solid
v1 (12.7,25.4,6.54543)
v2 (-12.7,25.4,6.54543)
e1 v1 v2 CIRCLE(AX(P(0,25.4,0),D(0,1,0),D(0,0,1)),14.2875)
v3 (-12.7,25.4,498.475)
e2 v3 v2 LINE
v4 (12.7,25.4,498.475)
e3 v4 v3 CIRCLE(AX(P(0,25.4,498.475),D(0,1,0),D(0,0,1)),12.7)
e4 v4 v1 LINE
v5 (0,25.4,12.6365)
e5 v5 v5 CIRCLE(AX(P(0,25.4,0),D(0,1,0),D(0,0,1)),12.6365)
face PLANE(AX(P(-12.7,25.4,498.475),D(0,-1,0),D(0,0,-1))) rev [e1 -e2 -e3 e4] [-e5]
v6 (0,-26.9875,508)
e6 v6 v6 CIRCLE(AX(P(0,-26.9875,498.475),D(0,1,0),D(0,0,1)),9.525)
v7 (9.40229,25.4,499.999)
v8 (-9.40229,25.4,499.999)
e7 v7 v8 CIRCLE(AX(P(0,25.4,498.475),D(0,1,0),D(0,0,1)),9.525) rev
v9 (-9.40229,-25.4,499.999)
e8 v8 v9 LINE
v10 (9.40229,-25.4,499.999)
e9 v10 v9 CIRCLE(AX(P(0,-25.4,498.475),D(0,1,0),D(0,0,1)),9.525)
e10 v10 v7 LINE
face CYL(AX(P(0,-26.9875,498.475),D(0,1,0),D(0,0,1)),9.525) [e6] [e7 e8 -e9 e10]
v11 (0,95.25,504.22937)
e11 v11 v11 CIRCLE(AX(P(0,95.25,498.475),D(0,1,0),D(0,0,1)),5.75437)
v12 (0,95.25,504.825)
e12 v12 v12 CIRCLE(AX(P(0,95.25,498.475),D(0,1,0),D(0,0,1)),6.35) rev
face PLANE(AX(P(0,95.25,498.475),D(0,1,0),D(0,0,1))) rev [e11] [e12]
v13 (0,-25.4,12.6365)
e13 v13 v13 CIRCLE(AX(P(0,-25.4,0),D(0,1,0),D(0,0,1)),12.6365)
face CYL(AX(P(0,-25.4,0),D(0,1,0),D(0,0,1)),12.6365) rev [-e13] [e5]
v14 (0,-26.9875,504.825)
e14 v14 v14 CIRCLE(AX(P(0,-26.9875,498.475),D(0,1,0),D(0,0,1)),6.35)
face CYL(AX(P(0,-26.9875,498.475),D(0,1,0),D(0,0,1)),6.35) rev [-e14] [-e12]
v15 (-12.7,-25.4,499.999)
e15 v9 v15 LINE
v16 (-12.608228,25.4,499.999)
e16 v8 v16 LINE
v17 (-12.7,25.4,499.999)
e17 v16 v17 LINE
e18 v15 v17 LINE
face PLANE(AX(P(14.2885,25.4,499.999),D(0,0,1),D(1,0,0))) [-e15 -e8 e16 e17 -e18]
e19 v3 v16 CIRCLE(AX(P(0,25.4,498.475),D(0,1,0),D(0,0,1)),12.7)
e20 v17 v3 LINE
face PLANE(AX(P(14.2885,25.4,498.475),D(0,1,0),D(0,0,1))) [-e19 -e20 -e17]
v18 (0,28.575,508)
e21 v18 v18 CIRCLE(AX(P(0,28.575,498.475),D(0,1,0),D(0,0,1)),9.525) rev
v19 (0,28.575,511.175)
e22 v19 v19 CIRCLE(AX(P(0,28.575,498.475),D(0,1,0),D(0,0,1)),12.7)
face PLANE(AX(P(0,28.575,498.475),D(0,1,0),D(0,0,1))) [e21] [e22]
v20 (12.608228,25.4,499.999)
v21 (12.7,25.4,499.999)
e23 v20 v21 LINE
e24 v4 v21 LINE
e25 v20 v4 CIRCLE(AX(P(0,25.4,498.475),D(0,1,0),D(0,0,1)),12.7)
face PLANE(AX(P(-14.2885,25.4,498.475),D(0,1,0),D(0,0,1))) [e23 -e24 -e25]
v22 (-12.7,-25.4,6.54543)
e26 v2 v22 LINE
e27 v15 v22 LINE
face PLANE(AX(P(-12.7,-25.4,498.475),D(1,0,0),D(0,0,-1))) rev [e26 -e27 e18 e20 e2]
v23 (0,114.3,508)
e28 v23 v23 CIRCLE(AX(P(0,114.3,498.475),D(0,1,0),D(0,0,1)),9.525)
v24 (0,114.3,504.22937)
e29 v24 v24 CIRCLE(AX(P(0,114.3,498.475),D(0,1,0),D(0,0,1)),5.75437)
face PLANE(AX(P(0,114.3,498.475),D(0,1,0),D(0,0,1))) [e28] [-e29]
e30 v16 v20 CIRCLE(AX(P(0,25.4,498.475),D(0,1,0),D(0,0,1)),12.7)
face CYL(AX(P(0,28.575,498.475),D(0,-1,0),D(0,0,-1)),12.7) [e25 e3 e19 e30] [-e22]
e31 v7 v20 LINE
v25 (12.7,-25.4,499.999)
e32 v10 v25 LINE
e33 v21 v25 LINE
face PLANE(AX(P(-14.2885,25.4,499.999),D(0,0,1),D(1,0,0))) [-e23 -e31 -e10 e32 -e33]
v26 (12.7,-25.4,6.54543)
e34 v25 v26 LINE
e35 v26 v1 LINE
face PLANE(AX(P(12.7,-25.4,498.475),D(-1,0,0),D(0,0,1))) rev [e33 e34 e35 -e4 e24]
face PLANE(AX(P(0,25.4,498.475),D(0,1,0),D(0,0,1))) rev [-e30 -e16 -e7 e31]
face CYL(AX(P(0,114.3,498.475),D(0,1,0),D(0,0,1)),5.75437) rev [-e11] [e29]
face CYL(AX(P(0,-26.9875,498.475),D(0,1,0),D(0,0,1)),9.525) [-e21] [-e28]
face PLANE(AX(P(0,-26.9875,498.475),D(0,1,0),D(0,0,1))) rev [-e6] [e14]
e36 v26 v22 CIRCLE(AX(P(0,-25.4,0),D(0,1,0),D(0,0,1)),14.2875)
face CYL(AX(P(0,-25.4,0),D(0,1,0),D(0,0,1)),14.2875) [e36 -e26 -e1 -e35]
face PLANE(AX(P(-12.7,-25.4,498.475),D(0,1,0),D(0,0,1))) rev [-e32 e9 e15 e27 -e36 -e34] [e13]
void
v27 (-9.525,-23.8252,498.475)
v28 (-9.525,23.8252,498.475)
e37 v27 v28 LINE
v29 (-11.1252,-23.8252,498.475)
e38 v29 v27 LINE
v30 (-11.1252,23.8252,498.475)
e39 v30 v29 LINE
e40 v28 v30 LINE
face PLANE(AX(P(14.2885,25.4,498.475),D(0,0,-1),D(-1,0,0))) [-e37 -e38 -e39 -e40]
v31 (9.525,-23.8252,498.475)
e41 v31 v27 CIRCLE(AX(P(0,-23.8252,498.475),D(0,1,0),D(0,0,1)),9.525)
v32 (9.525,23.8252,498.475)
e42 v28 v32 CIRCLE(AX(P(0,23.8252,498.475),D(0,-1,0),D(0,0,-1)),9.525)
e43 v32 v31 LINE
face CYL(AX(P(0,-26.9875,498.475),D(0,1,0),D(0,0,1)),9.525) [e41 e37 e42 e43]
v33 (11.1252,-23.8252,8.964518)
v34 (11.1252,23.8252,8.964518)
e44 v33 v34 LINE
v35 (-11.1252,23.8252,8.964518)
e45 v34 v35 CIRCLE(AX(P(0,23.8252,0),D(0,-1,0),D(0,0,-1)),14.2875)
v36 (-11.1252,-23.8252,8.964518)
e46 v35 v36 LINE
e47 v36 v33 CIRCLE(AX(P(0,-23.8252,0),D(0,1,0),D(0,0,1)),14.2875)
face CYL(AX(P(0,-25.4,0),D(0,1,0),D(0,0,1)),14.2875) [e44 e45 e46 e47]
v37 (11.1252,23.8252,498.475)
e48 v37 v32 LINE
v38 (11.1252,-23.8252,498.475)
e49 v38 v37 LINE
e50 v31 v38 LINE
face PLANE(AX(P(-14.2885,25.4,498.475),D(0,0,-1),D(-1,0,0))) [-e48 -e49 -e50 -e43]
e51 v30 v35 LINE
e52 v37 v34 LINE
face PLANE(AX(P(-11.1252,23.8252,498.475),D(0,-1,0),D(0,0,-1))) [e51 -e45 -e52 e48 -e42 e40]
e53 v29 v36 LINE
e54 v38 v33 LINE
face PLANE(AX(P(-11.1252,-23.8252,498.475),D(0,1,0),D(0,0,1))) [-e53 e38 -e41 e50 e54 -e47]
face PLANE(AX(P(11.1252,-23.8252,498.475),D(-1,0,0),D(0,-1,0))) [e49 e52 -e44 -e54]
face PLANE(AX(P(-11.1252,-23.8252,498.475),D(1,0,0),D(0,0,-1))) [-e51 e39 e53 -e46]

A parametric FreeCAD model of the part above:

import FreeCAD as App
import Part
import Sketcher
from FreeCAD import Vector
Q = App.Units.Quantity


def add_polygon(sketch, points):
    """Adds a closed chain of lines whose ends are joined by coincident constraints."""
    first, n = sketch.GeometryCount, len(points)
    for a, b in zip(points, points[1:] + points[:1]):
        sketch.addGeometry(Part.LineSegment(App.Vector(*a, 0), App.Vector(*b, 0)), False)
    for i in range(n):
        sketch.addConstraint(Sketcher.Constraint("Coincident", first + i, 2, first + (i + 1) % n, 1))

doc = App.newDocument("Part")
params = doc.addObject("Spreadsheet::Sheet", "Params")
for row, (alias, value) in enumerate([
    ("sketch1_width", "1 in"),
    ("sketch1_height", "2 in"),
    ("sketch1_width2", "0.876 in"),
    ("sketch1_height2", "1.876 in"),
    ("pad1_length", "19.625 in"),
    ("sketch2_diameter", "0.75 in"),
    ("sketch2_diameter2", "1.125 in"),
    ("sketch3_diameter", "1.125 in"),
    ("sketch3_diameter2", "0.995 in"),
    ("pad2_length", "2 in"),
    ("sketch4_diameter", "0.5 in"),
    ("sketch4_diameter2", "0.75 in"),
    ("pad3_length", "3.5 in"),
    ("pad3_length2", "2.0625 in"),
    ("sketch5_diameter", "1 in"),
    ("sketch5_diameter2", "0.75 in"),
    ("pad4_length", "0.125 in"),
    ("sketch6_diameter", "0.5 in"),
    ("pad5_length", "0.75 in"),
    ("hole_diameter", "0.4531 in"),
    ("hole_depth", "0.75 in"),
    ("sketch8_width", "2 in"),
    ("sketch8_height", "0.06 in"),
    ("sketch9_width", "2 in"),
    ("sketch9_height", "0.06 in"),
], start=1):
    params.set(f"A{row}", alias)
    params.set(f"B{row}", "=" + value)
    params.setAlias(f"B{row}", alias)

body = doc.addObject("PartDesign::Body", "Body")

# Sketch on XY plane
sketch1 = body.newObject("Sketcher::SketchObject", "Sketch")
sketch1.AttachmentSupport = (doc.getObject("XY_Plane"), [""])
sketch1.MapMode = "FlatFace"
add_polygon(sketch1, [(-13, 25), (-13, -25), (13, -25), (13, 25)])  # lines 0-3
add_polygon(sketch1, [(11, -24), (-11, -24), (-11, 24), (11, 24)])  # lines 4-7
sketch1.addConstraint([
    Sketcher.Constraint("Vertical", 0),
    Sketcher.Constraint("Horizontal", 1),
    Sketcher.Constraint("Vertical", 2),
    Sketcher.Constraint("Horizontal", 3),
    Sketcher.Constraint("Horizontal", 4),
    Sketcher.Constraint("Vertical", 5),
    Sketcher.Constraint("Horizontal", 6),
    Sketcher.Constraint("Vertical", 7),
    Sketcher.Constraint("Symmetric", 0, 2, 2, 2, -1, 1),
    Sketcher.Constraint("Symmetric", 4, 2, 6, 2, -1, 1),
    Sketcher.Constraint("DistanceX", 1, 1, 1, 2, Q("1 in")),
    Sketcher.Constraint("DistanceY", 0, 2, 0, 1, Q("2 in")),
    Sketcher.Constraint("DistanceX", 4, 2, 4, 1, Q("0.876 in")),
    Sketcher.Constraint("DistanceY", 5, 1, 5, 2, Q("1.876 in")),
])
sketch1.setExpression("Constraints[18]", "Params.sketch1_width")
sketch1.setExpression("Constraints[19]", "Params.sketch1_height")
sketch1.setExpression("Constraints[20]", "Params.sketch1_width2")
sketch1.setExpression("Constraints[21]", "Params.sketch1_height2")
pad1 = body.newObject("PartDesign::Pad", "Pad")
pad1.Profile = sketch1
pad1.setExpression("Length", "Params.pad1_length")

# Sketch on XZ plane
sketch2 = body.newObject("Sketcher::SketchObject", "Sketch001")
sketch2.AttachmentSupport = (doc.getObject("XZ_Plane"), [""])
sketch2.MapMode = "FlatFace"
sketch2.AttachmentOffset = App.Placement(Vector(0, 0, -1 * 25.4), App.Rotation())
sketch2.addGeometry([
    Part.Circle(Vector(0, 0, 0), Vector(0, 0, 1), 14),
    Part.Circle(Vector(0, 498, 0), Vector(0, 0, 1), 10),
], False)
sketch2.addConstraint([
    Sketcher.Constraint("Coincident", 0, 3, -1, 1),
    Sketcher.Constraint("PointOnObject", 1, 3, -2),
    Sketcher.Constraint("Diameter", 1, Q("0.75 in")),
    Sketcher.Constraint("Diameter", 0, Q("1.125 in")),
    Sketcher.Constraint("DistanceY", -1, 1, 1, 3, Q("19.625 in")),
])
sketch2.setExpression("Constraints[2]", "Params.sketch2_diameter")
sketch2.setExpression("Constraints[3]", "Params.sketch2_diameter2")
pocket1 = body.newObject("PartDesign::Pocket", "Pocket")
pocket1.Profile = sketch2
pocket1.Type = "ThroughAll"
pocket1.Reversed = True

# Sketch on XZ plane
sketch3 = body.newObject("Sketcher::SketchObject", "Sketch002")
sketch3.AttachmentSupport = (doc.getObject("XZ_Plane"), [""])
sketch3.MapMode = "FlatFace"
sketch3.AttachmentOffset = App.Placement(Vector(0, 0, -1 * 25.4), App.Rotation())
sketch3.addGeometry([
    Part.Circle(Vector(0, 0, 0), Vector(0, 0, 1), 14),
    Part.Circle(Vector(0, 0, 0), Vector(0, 0, 1), 13),
], False)
sketch3.addConstraint([
    Sketcher.Constraint("Coincident", 0, 3, -1, 1),
    Sketcher.Constraint("Coincident", 1, 3, -1, 1),
    Sketcher.Constraint("Diameter", 0, Q("1.125 in")),
    Sketcher.Constraint("Diameter", 1, Q("0.995 in")),
])
sketch3.setExpression("Constraints[2]", "Params.sketch3_diameter")
sketch3.setExpression("Constraints[3]", "Params.sketch3_diameter2")
pad2 = body.newObject("PartDesign::Pad", "Pad001")
pad2.Profile = sketch3
pad2.setExpression("Length", "Params.pad2_length")

# Sketch on XZ plane
sketch4 = body.newObject("Sketcher::SketchObject", "Sketch003")
sketch4.AttachmentSupport = (doc.getObject("XZ_Plane"), [""])
sketch4.MapMode = "FlatFace"
sketch4.AttachmentOffset = App.Placement(Vector(0, 0, -1 * 25.4), App.Rotation())
sketch4.addGeometry([
    Part.Circle(Vector(0, 498, 0), Vector(0, 0, 1), 10),
    Part.Circle(Vector(0, 498, 0), Vector(0, 0, 1), 6),
], False)
sketch4.addConstraint([
    Sketcher.Constraint("Coincident", 1, 3, 0, 3),
    Sketcher.Constraint("PointOnObject", 0, 3, -2),
    Sketcher.Constraint("Diameter", 1, Q("0.5 in")),
    Sketcher.Constraint("Diameter", 0, Q("0.75 in")),
    Sketcher.Constraint("DistanceY", -1, 1, 0, 3, Q("19.625 in")),
])
sketch4.setExpression("Constraints[2]", "Params.sketch4_diameter")
sketch4.setExpression("Constraints[3]", "Params.sketch4_diameter2")
pad3 = body.newObject("PartDesign::Pad", "Pad002")
pad3.Profile = sketch4
pad3.Type = "TwoLengths"
pad3.setExpression("Length", "Params.pad3_length")
pad3.setExpression("Length2", "Params.pad3_length2")
pad3.Reversed = True

# Sketch on XZ plane
sketch5 = body.newObject("Sketcher::SketchObject", "Sketch004")
sketch5.AttachmentSupport = (doc.getObject("XZ_Plane"), [""])
sketch5.MapMode = "FlatFace"
sketch5.AttachmentOffset = App.Placement(Vector(0, 0, -1 * 25.4), App.Rotation())
sketch5.addGeometry([
    Part.Circle(Vector(0, 498, 0), Vector(0, 0, 1), 13),
    Part.Circle(Vector(0, 498, 0), Vector(0, 0, 1), 10),
], False)
sketch5.addConstraint([
    Sketcher.Constraint("Coincident", 1, 3, 0, 3),
    Sketcher.Constraint("PointOnObject", 0, 3, -2),
    Sketcher.Constraint("Diameter", 0, Q("1 in")),
    Sketcher.Constraint("Diameter", 1, Q("0.75 in")),
    Sketcher.Constraint("DistanceY", -1, 1, 0, 3, Q("19.625 in")),
])
sketch5.setExpression("Constraints[2]", "Params.sketch5_diameter")
sketch5.setExpression("Constraints[3]", "Params.sketch5_diameter2")
pad4 = body.newObject("PartDesign::Pad", "Pad003")
pad4.Profile = sketch5
pad4.setExpression("Length", "Params.pad4_length")
pad4.Reversed = True

# Sketch on XZ plane
sketch6 = body.newObject("Sketcher::SketchObject", "Sketch005")
sketch6.AttachmentSupport = (doc.getObject("XZ_Plane"), [""])
sketch6.MapMode = "FlatFace"
sketch6.AttachmentOffset = App.Placement(Vector(0, 0, -4.5 * 25.4), App.Rotation())
sketch6.addGeometry(Part.Circle(Vector(0, 498, 0), Vector(0, 0, 1), 6), False)
sketch6.addConstraint([
    Sketcher.Constraint("PointOnObject", 0, 3, -2),
    Sketcher.Constraint("Diameter", 0, Q("0.5 in")),
    Sketcher.Constraint("DistanceY", -1, 1, 0, 3, Q("19.625 in")),
])
sketch6.setExpression("Constraints[1]", "Params.sketch6_diameter")
pad5 = body.newObject("PartDesign::Pad", "Pad004")
pad5.Profile = sketch6
pad5.setExpression("Length", "Params.pad5_length")

# Sketch on XZ plane
sketch7 = body.newObject("Sketcher::SketchObject", "Sketch006")
sketch7.AttachmentSupport = (doc.getObject("XZ_Plane"), [""])
sketch7.MapMode = "FlatFace"
sketch7.AttachmentOffset = App.Placement(Vector(0, 0, -4.5 * 25.4), App.Rotation())
sketch7.addGeometry(Part.Circle(Vector(0, 498, 0), Vector(0, 0, 1), 6), False)
sketch7.addConstraint([
    Sketcher.Constraint("PointOnObject", 0, 3, -2),
    Sketcher.Constraint("Diameter", 0, Q("0.4531 in")),
    Sketcher.Constraint("DistanceY", -1, 1, 0, 3, Q("19.625 in")),
])
doc.recompute()
hole = body.newObject("PartDesign::Hole", "Hole")
hole.Profile = sketch7
hole.ThreadType = "None"
hole.setExpression("Diameter", "Params.hole_diameter")
hole.DepthType = "Dimension"
hole.setExpression("Depth", "Params.hole_depth")
hole.DrillPoint = "Flat"
hole.Reversed = True

# Sketch on YZ plane
sketch8 = body.newObject("Sketcher::SketchObject", "Sketch007")
sketch8.AttachmentSupport = (doc.getObject("YZ_Plane"), [""])
sketch8.MapMode = "FlatFace"
sketch8.AttachmentOffset = App.Placement(Vector(0, 0, 0.5 * 25.4), App.Rotation())
add_polygon(sketch8, [(25.4, 500), (-25.4, 500), (-25.4, 498.5), (25.4, 498.5)])  # lines 0-3
sketch8.addConstraint([
    Sketcher.Constraint("Horizontal", 0),
    Sketcher.Constraint("Vertical", 1),
    Sketcher.Constraint("Horizontal", 2),
    Sketcher.Constraint("Vertical", 3),
    Sketcher.Constraint("DistanceX", 0, 2, 0, 1, Q("2 in")),
    Sketcher.Constraint("DistanceX", 0, 2, -1, 1, Q("1 in")),
    Sketcher.Constraint("DistanceY", 1, 2, 1, 1, Q("0.06 in")),
    Sketcher.Constraint("DistanceY", -1, 1, 0, 2, Q("19.685 in")),
])
sketch8.setExpression("Constraints[8]", "Params.sketch8_width")
sketch8.setExpression("Constraints[10]", "Params.sketch8_height")
pad6 = body.newObject("PartDesign::Pad", "Pad005")
pad6.Profile = sketch8
pad6.Type = "UpToFirst"
pad6.Reversed = True

# Sketch on YZ plane
sketch9 = body.newObject("Sketcher::SketchObject", "Sketch008")
sketch9.AttachmentSupport = (doc.getObject("YZ_Plane"), [""])
sketch9.MapMode = "FlatFace"
sketch9.AttachmentOffset = App.Placement(Vector(0, 0, -0.5 * 25.4), App.Rotation())
add_polygon(sketch9, [(25.4, 498.5), (-25.4, 498.5), (-25.4, 500), (25.4, 500)])  # lines 0-3
sketch9.addConstraint([
    Sketcher.Constraint("Horizontal", 0),
    Sketcher.Constraint("Vertical", 1),
    Sketcher.Constraint("Horizontal", 2),
    Sketcher.Constraint("Vertical", 3),
    Sketcher.Constraint("DistanceX", 0, 2, 0, 1, Q("2 in")),
    Sketcher.Constraint("DistanceX", 0, 2, -1, 1, Q("1 in")),
    Sketcher.Constraint("DistanceY", 1, 1, 1, 2, Q("0.06 in")),
    Sketcher.Constraint("DistanceY", -1, 1, 0, 2, Q("19.625 in")),
])
sketch9.setExpression("Constraints[8]", "Params.sketch9_width")
sketch9.setExpression("Constraints[10]", "Params.sketch9_height")
pad7 = body.newObject("PartDesign::Pad", "Pad006")
pad7.Profile = sketch9
pad7.Type = "UpToFirst"

doc.recompute()
